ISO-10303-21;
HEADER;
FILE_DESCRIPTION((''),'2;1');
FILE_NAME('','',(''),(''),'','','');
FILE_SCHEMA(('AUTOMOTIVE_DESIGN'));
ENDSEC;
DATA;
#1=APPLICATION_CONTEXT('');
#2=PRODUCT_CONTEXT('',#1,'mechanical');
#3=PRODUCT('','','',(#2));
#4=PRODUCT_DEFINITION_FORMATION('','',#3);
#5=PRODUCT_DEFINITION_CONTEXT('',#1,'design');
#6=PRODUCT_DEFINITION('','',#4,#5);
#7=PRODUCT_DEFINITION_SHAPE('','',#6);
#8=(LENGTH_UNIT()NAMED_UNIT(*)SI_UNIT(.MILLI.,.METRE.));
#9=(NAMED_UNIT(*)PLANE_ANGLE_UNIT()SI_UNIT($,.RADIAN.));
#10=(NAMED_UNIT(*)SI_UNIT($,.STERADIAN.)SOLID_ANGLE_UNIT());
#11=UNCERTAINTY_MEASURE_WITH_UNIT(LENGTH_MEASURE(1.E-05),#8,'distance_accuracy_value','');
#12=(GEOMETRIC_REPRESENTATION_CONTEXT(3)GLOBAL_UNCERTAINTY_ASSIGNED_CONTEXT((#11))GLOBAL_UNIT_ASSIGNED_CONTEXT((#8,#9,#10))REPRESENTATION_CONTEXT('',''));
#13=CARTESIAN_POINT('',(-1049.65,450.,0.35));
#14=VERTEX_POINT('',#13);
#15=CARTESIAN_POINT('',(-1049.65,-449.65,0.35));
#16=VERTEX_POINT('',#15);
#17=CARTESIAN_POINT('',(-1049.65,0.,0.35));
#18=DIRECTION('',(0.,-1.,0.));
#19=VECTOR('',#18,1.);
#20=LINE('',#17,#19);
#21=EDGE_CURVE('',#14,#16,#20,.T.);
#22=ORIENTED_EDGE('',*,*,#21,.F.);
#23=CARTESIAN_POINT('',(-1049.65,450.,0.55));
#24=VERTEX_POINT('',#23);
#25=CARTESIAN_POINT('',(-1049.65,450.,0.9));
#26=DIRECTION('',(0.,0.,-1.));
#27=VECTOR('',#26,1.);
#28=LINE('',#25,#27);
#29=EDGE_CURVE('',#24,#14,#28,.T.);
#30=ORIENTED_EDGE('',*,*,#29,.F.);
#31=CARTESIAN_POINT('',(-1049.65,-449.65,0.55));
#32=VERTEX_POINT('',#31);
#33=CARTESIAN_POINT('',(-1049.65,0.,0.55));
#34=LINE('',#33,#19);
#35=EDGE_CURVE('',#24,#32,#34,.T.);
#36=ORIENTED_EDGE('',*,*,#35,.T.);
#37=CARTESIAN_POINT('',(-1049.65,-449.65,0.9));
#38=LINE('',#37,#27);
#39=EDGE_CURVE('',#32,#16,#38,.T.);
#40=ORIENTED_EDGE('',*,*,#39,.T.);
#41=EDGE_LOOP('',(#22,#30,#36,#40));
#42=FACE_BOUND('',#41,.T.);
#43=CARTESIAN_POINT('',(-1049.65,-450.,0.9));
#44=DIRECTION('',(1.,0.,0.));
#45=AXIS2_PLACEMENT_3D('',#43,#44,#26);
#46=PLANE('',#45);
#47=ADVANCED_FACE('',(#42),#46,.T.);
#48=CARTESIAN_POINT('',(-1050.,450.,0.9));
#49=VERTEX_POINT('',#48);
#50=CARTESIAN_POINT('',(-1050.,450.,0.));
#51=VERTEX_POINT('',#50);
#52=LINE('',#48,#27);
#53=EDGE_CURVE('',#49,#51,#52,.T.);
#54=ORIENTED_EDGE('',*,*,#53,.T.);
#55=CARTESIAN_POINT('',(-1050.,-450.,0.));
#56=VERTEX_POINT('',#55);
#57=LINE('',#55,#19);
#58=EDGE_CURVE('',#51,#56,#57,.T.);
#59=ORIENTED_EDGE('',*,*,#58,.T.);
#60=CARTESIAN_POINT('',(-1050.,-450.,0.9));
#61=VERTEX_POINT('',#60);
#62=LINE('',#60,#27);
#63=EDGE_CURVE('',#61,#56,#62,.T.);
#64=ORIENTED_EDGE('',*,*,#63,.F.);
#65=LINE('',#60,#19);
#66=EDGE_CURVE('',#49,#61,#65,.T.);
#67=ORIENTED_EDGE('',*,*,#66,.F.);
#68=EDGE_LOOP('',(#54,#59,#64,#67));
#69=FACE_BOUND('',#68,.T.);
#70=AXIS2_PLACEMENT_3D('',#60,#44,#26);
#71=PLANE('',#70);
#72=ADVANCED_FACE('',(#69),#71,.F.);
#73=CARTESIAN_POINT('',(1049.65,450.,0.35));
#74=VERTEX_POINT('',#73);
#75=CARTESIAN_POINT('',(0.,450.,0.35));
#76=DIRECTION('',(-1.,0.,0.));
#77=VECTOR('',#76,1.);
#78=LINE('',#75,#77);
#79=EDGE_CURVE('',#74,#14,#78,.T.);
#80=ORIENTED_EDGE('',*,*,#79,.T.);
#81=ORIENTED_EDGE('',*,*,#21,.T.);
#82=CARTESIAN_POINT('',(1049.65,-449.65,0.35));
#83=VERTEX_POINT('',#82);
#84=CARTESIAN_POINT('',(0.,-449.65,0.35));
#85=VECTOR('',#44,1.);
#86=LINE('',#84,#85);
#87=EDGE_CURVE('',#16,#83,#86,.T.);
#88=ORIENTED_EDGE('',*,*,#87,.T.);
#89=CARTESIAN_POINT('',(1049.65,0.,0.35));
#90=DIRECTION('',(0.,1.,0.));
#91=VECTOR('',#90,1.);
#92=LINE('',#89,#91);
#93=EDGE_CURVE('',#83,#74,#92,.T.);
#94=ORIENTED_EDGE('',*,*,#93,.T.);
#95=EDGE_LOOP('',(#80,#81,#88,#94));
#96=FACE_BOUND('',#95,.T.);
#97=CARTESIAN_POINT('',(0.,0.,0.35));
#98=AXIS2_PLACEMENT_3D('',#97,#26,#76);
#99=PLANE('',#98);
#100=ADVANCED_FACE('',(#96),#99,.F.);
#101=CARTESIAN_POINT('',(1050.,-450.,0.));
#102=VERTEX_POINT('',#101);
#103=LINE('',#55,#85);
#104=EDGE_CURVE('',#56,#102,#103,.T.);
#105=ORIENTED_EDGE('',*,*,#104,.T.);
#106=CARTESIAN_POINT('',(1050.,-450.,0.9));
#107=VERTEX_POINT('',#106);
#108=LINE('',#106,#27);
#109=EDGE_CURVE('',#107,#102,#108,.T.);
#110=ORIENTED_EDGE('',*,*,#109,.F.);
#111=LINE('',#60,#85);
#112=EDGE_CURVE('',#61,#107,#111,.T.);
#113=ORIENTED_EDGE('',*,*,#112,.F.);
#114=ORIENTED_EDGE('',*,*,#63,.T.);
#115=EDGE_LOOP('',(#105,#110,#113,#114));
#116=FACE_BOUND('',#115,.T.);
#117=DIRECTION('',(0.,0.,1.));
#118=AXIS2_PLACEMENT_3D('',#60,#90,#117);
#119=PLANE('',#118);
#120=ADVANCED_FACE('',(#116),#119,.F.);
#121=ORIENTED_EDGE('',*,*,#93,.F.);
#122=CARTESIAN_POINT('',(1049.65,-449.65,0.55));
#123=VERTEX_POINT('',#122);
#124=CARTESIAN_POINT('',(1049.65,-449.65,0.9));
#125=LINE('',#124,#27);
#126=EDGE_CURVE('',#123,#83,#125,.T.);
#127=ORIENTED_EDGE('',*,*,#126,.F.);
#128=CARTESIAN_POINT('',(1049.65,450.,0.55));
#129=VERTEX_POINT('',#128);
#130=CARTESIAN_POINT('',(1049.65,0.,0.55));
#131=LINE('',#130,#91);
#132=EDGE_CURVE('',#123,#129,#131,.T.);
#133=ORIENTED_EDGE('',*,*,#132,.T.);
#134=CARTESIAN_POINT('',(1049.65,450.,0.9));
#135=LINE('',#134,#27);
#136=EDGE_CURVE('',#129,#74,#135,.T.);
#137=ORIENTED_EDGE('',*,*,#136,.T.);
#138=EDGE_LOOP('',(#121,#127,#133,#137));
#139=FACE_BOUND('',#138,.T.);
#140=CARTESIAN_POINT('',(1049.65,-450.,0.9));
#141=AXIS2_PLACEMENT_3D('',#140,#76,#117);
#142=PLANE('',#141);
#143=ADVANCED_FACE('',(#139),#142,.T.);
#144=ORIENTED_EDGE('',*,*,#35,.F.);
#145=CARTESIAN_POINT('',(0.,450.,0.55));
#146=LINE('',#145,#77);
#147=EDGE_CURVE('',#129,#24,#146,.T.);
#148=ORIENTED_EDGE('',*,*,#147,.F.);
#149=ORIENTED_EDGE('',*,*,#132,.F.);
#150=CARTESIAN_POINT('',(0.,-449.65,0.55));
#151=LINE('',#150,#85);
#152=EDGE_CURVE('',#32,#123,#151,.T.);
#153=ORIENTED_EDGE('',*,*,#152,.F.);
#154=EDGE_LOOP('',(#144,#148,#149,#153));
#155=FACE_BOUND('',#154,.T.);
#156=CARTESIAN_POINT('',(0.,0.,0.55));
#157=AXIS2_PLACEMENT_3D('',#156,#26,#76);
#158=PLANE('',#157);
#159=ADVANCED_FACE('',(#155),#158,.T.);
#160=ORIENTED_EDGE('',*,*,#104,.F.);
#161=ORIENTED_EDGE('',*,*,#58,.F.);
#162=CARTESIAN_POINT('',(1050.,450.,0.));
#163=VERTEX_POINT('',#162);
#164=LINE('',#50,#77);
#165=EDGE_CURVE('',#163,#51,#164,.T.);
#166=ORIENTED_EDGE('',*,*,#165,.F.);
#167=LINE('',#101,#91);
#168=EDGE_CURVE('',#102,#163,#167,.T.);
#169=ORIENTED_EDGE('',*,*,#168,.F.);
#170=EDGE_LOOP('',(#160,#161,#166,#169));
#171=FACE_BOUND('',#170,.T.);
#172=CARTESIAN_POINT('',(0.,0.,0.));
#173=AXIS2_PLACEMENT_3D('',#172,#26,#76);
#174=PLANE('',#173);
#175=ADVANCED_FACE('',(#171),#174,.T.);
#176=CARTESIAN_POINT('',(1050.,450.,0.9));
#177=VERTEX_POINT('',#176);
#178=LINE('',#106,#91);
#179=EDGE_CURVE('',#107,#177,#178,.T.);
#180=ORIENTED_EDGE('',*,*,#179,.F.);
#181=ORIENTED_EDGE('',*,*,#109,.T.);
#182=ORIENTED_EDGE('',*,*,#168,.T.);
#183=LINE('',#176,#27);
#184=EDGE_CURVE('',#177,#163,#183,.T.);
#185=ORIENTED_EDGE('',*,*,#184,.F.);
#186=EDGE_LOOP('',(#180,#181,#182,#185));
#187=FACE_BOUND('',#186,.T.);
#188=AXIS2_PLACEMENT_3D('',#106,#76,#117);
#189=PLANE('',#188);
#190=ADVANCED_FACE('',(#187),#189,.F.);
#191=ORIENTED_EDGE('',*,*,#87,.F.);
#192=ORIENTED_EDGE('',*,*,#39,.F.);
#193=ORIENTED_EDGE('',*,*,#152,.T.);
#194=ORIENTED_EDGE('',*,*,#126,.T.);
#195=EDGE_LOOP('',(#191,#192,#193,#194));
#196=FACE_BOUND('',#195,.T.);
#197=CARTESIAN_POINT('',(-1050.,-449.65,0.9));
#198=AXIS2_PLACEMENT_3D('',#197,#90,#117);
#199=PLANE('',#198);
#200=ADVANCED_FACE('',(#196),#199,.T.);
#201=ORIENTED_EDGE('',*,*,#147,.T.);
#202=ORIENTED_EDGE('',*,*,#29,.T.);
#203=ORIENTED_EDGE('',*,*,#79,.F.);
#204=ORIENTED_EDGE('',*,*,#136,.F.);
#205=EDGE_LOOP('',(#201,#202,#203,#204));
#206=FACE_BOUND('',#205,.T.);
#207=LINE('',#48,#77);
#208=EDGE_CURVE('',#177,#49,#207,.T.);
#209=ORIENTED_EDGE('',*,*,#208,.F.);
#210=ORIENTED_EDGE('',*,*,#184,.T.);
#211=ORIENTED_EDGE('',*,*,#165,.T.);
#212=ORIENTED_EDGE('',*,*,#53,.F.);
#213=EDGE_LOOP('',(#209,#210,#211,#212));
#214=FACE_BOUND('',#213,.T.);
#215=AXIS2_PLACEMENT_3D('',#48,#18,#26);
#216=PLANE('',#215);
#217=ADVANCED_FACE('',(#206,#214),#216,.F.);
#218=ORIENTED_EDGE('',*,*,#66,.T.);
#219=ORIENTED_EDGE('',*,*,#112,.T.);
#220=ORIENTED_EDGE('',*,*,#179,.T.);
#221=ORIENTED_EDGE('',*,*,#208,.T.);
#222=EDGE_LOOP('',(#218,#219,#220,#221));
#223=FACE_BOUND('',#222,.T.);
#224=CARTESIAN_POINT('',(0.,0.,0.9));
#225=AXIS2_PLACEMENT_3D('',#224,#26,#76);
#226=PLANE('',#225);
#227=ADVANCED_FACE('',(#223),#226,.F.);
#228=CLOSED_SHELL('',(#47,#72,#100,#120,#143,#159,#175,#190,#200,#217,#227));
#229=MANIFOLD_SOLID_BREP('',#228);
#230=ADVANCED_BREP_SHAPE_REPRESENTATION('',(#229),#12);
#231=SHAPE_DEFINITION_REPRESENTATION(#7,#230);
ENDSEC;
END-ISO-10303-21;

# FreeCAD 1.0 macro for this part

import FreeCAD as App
import Part
import Sketcher
from FreeCAD import Vector


def faces_at(feature, points):
    """Names of the faces that lie closest to the given points."""
    faces = feature.Shape.Faces
    near = lambda p: min(range(len(faces)), key=lambda i: faces[i].distToShape(Part.Vertex(*p))[0])
    return sorted({f"Face{near(p) + 1}" for p in points})


def add_polygon(sketch, points):
    """Adds a closed chain of lines whose ends are joined by coincident constraints."""
    first, n = sketch.GeometryCount, len(points)
    for a, b in zip(points, points[1:] + points[:1]):
        sketch.addGeometry(Part.LineSegment(App.Vector(*a, 0), App.Vector(*b, 0)), False)
    for i in range(n):
        sketch.addConstraint(Sketcher.Constraint("Coincident", first + i, 2, first + (i + 1) % n, 1))

doc = App.newDocument("Part")
body = doc.addObject("PartDesign::Body", "Body")

sketch1 = body.newObject("Sketcher::SketchObject", "Sketch")
sketch1.AttachmentSupport = (doc.getObject("XY_Plane"), [""])
sketch1.MapMode = "FlatFace"
add_polygon(sketch1, [(-1050, 450), (-1050, -450), (1050, -450), (1050, 450)])
sketch1.addConstraint(Sketcher.Constraint("Vertical", 0))
sketch1.addConstraint(Sketcher.Constraint("Horizontal", 1))
sketch1.addConstraint(Sketcher.Constraint("Vertical", 2))
sketch1.addConstraint(Sketcher.Constraint("Horizontal", 3))
sketch1.addConstraint(Sketcher.Constraint("Symmetric", 0, 2, 2, 2, -1, 1))
sketch1.addConstraint(Sketcher.Constraint("DistanceX", 1, 1, 1, 2, 2100.0))
sketch1.addConstraint(Sketcher.Constraint("DistanceY", 0, 2, 0, 1, 900.0))
pad1 = body.newObject("PartDesign::Pad", "Pad")
pad1.Profile = sketch1
pad1.Length = 0.9
doc.recompute()

thickness = body.newObject("PartDesign::Thickness", "Thickness")
thickness.Base = (pad1, faces_at(pad1, [(0, 450, 0.45)]))
thickness.Value = 0.35
thickness.Reversed = True
thickness.Join = "Intersection"

doc.recompute()
